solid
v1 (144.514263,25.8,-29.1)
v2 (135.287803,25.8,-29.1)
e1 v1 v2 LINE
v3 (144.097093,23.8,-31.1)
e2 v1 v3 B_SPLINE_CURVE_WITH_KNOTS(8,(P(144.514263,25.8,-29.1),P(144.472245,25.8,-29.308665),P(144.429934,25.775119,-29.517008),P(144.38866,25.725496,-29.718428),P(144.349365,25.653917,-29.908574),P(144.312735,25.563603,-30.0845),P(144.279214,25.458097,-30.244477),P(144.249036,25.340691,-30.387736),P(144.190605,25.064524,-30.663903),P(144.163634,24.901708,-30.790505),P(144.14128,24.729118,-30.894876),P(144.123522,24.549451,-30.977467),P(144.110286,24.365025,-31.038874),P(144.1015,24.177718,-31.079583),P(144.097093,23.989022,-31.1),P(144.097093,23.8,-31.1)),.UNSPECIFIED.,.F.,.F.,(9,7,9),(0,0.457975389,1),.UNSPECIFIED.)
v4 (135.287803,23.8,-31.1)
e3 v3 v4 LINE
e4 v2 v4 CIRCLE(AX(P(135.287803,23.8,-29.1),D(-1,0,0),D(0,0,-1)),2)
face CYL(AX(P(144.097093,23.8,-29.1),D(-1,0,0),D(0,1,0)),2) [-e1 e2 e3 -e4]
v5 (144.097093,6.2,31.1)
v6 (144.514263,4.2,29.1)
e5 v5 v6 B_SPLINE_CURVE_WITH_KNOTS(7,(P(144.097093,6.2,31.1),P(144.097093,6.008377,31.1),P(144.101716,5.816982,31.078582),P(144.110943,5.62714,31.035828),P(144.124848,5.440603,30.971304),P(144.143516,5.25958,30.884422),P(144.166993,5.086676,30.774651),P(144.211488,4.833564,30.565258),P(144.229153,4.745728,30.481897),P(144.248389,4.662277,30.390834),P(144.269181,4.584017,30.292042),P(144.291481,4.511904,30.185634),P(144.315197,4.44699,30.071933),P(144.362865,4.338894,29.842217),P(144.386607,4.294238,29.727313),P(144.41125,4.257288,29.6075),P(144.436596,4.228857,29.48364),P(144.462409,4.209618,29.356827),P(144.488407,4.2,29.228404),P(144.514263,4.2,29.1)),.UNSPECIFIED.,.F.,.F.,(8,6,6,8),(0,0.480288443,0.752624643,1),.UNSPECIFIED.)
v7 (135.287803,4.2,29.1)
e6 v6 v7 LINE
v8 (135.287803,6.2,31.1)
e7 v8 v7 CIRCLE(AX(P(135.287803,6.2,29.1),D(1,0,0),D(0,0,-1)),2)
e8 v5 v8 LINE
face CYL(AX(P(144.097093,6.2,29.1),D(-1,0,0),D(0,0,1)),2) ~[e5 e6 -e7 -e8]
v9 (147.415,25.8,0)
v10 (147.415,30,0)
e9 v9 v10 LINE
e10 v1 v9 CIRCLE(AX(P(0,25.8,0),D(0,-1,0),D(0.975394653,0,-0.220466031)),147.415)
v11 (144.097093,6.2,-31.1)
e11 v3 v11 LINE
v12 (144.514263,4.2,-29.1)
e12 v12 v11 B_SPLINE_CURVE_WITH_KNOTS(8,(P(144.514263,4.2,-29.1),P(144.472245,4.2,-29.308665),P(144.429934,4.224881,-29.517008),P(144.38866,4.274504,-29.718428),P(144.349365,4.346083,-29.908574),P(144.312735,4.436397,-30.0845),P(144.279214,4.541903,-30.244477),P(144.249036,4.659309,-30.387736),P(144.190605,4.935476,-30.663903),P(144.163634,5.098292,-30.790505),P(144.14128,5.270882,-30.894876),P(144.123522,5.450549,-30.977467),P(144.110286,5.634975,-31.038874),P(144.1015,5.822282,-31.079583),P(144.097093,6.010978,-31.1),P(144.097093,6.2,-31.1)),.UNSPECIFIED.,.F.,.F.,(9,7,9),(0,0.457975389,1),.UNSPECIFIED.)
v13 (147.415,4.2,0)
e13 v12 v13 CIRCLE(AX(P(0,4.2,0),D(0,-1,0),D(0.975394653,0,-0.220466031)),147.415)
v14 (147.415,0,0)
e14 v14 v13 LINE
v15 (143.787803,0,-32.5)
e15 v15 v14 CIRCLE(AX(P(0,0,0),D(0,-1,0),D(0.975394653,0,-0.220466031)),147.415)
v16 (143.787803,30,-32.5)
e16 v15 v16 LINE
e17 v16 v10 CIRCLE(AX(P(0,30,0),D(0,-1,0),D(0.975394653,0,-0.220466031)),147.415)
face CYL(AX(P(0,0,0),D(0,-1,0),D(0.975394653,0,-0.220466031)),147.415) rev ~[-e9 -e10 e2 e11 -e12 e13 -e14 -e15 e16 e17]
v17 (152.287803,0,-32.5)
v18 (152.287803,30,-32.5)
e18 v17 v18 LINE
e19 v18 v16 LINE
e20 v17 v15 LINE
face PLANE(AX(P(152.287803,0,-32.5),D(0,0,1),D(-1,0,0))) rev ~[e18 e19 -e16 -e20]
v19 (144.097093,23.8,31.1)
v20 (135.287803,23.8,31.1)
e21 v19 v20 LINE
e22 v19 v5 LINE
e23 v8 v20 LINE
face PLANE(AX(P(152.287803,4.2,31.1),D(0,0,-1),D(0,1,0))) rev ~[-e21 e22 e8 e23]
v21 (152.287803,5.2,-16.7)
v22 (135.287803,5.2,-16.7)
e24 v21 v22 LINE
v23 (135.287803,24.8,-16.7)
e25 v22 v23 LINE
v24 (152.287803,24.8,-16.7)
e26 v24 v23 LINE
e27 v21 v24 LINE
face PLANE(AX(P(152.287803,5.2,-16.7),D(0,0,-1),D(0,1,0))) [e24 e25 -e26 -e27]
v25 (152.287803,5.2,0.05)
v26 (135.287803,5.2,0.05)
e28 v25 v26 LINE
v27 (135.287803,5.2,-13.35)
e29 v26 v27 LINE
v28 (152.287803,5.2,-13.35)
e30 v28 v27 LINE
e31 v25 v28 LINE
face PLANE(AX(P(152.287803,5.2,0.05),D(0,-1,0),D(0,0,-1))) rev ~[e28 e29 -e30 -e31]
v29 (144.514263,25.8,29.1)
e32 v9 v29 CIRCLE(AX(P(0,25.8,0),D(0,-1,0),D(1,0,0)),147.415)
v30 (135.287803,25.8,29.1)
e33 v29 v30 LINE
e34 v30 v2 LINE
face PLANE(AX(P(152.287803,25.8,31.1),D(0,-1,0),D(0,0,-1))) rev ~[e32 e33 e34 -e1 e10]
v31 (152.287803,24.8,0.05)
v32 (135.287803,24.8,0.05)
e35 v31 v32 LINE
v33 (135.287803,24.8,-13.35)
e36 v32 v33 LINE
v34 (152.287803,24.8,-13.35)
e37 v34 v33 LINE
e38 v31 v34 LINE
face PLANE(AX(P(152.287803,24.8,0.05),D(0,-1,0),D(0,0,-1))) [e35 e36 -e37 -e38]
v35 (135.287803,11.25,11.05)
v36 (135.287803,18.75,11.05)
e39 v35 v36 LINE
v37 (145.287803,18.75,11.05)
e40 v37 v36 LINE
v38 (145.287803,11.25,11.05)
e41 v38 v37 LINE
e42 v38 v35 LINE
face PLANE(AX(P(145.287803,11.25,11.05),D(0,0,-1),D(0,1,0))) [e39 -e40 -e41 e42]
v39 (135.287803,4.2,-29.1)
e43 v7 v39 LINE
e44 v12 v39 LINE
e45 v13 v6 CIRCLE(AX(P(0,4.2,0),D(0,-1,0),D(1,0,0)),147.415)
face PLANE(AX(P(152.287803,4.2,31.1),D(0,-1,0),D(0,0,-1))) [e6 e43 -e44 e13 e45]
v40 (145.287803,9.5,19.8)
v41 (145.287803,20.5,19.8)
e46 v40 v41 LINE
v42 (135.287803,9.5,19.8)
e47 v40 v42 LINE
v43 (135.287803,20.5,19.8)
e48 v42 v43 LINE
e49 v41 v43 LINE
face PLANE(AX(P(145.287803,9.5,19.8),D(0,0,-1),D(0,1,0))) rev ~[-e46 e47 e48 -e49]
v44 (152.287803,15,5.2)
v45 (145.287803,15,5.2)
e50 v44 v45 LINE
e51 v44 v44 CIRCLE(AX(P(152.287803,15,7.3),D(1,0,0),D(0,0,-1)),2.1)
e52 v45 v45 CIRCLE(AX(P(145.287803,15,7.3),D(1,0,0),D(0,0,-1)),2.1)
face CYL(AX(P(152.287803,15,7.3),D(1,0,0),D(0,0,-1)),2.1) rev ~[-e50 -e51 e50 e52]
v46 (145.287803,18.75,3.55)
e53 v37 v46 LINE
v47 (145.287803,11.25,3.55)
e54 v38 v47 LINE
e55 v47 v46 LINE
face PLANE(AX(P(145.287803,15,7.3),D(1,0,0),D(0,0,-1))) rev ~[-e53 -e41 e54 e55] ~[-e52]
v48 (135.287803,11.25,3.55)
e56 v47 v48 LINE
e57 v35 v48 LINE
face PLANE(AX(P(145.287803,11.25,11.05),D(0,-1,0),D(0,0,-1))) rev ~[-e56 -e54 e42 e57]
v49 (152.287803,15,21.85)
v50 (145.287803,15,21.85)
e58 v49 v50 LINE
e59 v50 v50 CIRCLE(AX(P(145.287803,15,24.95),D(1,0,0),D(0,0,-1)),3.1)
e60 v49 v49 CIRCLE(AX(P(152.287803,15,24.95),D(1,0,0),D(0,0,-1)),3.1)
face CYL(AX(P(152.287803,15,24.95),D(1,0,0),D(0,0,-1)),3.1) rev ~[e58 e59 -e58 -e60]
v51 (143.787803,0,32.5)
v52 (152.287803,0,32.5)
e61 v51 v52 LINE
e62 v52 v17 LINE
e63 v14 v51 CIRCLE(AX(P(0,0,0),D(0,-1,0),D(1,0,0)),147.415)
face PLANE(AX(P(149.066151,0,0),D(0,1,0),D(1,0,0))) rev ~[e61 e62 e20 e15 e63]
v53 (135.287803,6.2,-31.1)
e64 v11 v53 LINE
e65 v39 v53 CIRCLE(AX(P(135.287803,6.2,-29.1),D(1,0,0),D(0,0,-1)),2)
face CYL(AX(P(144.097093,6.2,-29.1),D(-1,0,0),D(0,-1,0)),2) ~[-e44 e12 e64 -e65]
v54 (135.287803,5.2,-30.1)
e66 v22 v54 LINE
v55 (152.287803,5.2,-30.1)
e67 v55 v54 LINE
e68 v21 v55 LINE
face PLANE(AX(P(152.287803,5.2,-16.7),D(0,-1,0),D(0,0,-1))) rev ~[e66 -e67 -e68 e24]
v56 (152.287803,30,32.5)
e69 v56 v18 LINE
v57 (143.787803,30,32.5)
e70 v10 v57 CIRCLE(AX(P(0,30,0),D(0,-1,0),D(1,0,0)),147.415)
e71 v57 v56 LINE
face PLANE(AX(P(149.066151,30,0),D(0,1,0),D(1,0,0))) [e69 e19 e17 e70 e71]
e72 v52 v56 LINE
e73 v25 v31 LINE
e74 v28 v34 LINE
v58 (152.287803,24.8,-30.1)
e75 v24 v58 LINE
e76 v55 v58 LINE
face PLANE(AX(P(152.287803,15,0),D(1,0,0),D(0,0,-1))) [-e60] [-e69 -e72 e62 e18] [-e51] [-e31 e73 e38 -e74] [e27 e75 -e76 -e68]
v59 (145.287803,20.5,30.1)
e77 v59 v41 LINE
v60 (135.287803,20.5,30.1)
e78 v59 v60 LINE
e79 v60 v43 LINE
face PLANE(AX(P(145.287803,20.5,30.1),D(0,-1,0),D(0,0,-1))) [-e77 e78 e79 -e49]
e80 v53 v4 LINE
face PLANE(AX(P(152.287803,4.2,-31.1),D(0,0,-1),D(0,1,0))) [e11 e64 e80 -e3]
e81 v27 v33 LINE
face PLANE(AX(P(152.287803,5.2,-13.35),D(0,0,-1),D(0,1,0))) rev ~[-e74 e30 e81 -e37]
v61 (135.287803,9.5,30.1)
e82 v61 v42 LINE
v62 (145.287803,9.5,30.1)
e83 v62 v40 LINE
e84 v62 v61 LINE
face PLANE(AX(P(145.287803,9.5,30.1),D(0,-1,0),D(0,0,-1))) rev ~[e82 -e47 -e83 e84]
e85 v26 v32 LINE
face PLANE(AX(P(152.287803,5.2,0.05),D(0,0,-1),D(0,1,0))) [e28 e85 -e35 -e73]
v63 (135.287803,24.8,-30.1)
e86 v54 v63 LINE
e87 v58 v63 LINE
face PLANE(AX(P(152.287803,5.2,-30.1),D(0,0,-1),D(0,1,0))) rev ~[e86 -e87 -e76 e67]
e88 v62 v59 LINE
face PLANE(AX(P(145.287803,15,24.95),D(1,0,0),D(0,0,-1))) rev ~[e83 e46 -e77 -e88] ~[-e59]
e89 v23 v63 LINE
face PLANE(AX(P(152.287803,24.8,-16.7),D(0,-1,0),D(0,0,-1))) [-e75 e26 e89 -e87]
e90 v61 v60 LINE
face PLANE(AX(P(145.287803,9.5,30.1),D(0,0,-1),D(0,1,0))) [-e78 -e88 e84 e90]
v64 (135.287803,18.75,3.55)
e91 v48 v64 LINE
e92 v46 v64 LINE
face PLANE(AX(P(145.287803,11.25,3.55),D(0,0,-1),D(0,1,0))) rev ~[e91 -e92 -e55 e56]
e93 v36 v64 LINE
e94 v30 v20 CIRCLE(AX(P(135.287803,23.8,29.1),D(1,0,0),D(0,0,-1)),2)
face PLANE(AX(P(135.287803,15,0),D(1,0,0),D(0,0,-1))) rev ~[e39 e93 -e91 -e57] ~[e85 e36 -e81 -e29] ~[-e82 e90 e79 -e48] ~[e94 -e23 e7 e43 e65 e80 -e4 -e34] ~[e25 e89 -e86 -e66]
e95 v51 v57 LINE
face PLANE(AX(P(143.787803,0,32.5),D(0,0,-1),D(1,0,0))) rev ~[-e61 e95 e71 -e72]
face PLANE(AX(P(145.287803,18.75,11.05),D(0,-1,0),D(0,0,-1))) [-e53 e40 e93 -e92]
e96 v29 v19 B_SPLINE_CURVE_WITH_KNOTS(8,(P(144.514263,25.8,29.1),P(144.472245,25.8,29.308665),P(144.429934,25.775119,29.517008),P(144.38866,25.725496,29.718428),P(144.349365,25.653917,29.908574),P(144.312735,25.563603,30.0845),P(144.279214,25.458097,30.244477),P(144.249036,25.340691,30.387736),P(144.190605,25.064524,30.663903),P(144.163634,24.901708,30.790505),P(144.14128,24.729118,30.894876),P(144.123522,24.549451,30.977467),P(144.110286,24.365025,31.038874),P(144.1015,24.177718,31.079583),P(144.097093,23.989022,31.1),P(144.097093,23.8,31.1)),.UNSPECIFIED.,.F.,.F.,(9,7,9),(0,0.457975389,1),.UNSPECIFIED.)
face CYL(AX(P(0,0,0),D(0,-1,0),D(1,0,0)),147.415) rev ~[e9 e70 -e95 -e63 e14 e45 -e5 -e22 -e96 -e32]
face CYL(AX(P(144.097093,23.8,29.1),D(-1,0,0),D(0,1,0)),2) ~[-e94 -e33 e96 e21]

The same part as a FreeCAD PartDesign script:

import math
import FreeCAD as App
import Part
import Sketcher
from FreeCAD import Vector


def edges_at(feature, points):
    """Names of the edges that pass closest to the given points."""
    edges = feature.Shape.Edges
    near = lambda p: min(range(len(edges)), key=lambda i: edges[i].distToShape(Part.Vertex(*p))[0])
    return sorted({f"Edge{near(p) + 1}" for p in points})


def add_polygon(sketch, points):
    """Adds a closed chain of lines whose ends are joined by coincident constraints."""
    first, n = sketch.GeometryCount, len(points)
    for a, b in zip(points, points[1:] + points[:1]):
        sketch.addGeometry(Part.LineSegment(App.Vector(*a, 0), App.Vector(*b, 0)), False)
    for i in range(n):
        sketch.addConstraint(Sketcher.Constraint("Coincident", first + i, 2, first + (i + 1) % n, 1))

doc = App.newDocument("Part")
body = doc.addObject("PartDesign::Body", "Body")

sketch1 = body.newObject("Sketcher::SketchObject", "Sketch")
sketch1.AttachmentSupport = (doc.getObject("XZ_Plane"), [""])
sketch1.MapMode = "FlatFace"
sketch1.addGeometry([
    Part.LineSegment(Vector(152, -32, 0), Vector(144, -32, 0)),
    Part.ArcOfCircle(Part.Circle(Vector(0, 0, 0), Vector(0, 0, 1), 147), math.radians(-12.74), math.radians(0)),
    Part.ArcOfCircle(Part.Circle(Vector(0, 0, 0), Vector(0, 0, 1), 147), math.radians(0), math.radians(12.74)),
    Part.LineSegment(Vector(144, 32, 0), Vector(152, 32, 0)),
    Part.LineSegment(Vector(152, 32, 0), Vector(152, -32, 0)),
], False)
sketch1.addConstraint([
    Sketcher.Constraint("Coincident", 0, 2, 1, 1),
    Sketcher.Constraint("Tangent", 1, 2, 2, 1),
    Sketcher.Constraint("Coincident", 2, 2, 3, 1),
    Sketcher.Constraint("Coincident", 3, 2, 4, 1),
    Sketcher.Constraint("Coincident", 4, 2, 0, 1),
    Sketcher.Constraint("Horizontal", 0),
    Sketcher.Constraint("Horizontal", 3),
    Sketcher.Constraint("Vertical", 4),
    Sketcher.Constraint("Coincident", 1, 3, -1, 1),
    Sketcher.Constraint("Equal", 1, 2),
    Sketcher.Constraint("PointOnObject", 1, 2, -1),
    Sketcher.Constraint("Vertical", 0, 2, 2, 2),
    Sketcher.Constraint("DistanceY", 4, 2, 4, 1, 65.0),
    Sketcher.Constraint("DistanceX", 0, 2, 0, 1, 8.5),
    Sketcher.Constraint("Radius", 1, 147.415),
])
pad1 = body.newObject("PartDesign::Pad", "Pad")
pad1.Profile = sketch1
pad1.Length = 30
pad1.Reversed = True

sketch2 = body.newObject("Sketcher::SketchObject", "Sketch001")
sketch2.AttachmentSupport = (doc.getObject("YZ_Plane"), [""])
sketch2.MapMode = "FlatFace"
sketch2.AttachmentOffset = App.Placement(Vector(0, 0, 152.287803), App.Rotation())
add_polygon(sketch2, [(26, 31), (4, 31), (4, -31), (26, -31)])
sketch2.addConstraint([
    Sketcher.Constraint("Horizontal", 0),
    Sketcher.Constraint("Vertical", 1),
    Sketcher.Constraint("Horizontal", 2),
    Sketcher.Constraint("Vertical", 3),
    Sketcher.Constraint("DistanceX", 0, 2, 0, 1, 21.6),
    Sketcher.Constraint("DistanceY", 1, 2, 1, 1, 62.2),
    Sketcher.Constraint("DistanceX", -1, 1, 0, 2, 4.2),
    Sketcher.Constraint("DistanceY", -1, 1, 0, 2, 31.1),
])
pad2 = body.newObject("PartDesign::Pad", "Pad001")
pad2.Profile = sketch2
pad2.Length = 17
pad2.Reversed = True

sketch3 = body.newObject("Sketcher::SketchObject", "Sketch002")
sketch3.AttachmentSupport = (doc.getObject("YZ_Plane"), [""])
sketch3.MapMode = "FlatFace"
sketch3.AttachmentOffset = App.Placement(Vector(0, 0, 152.287803), App.Rotation())
sketch3.addGeometry(Part.Circle(Vector(15, 7.3, 0), Vector(0, 0, 1), 2.1), False)
sketch3.addGeometry(Part.Circle(Vector(15, 24.9, 0), Vector(0, 0, 1), 3.1), False)
add_polygon(sketch3, [(24.8, -16.7), (5.2, -16.7), (5.2, -30.1), (24.8, -30.1)])
add_polygon(sketch3, [(24.8, 0.1), (5.2, 0.1), (5.2, -13.3), (24.8, -13.3)])
sketch3.addConstraint([
    Sketcher.Constraint("Horizontal", 2),
    Sketcher.Constraint("Vertical", 3),
    Sketcher.Constraint("Horizontal", 4),
    Sketcher.Constraint("Vertical", 5),
    Sketcher.Constraint("Horizontal", 6),
    Sketcher.Constraint("Vertical", 7),
    Sketcher.Constraint("Horizontal", 8),
    Sketcher.Constraint("Vertical", 9),
    Sketcher.Constraint("Vertical", 0, 3, 1, 3),
    Sketcher.Constraint("Vertical", 3, 2, 6, 2),
    Sketcher.Constraint("Vertical", 5, 2, 8, 2),
    Sketcher.Constraint("Equal", 5, 7),
    Sketcher.Constraint("Diameter", 0, 4.2),
    Sketcher.Constraint("Diameter", 1, 6.2),
    Sketcher.Constraint("DistanceX", 2, 2, 2, 1, 19.6),
    Sketcher.Constraint("DistanceY", 3, 2, 3, 1, 13.4),
    Sketcher.Constraint("DistanceX", -1, 1, 0, 3, 15.0),
    Sketcher.Constraint("DistanceY", 2, 2, 0, 3, 24.0),
    Sketcher.Constraint("DistanceY", -1, 1, 0, 3, 7.3),
    Sketcher.Constraint("DistanceX", -1, 1, 2, 2, 5.2),
    Sketcher.Constraint("DistanceY", 6, 2, 1, 3, 24.9),
    Sketcher.Constraint("DistanceY", -1, 1, 1, 3, 24.95),
])
pocket1 = body.newObject("PartDesign::Pocket", "Pocket")
pocket1.Profile = sketch3
pocket1.Length = 17

sketch4 = body.newObject("Sketcher::SketchObject", "Sketch003")
sketch4.AttachmentSupport = (doc.getObject("YZ_Plane"), [""])
sketch4.MapMode = "FlatFace"
sketch4.AttachmentOffset = App.Placement(Vector(0, 0, 145.287803), App.Rotation())
add_polygon(sketch4, [(18.8, 11.1), (11.2, 11.1), (11.2, 3.5), (18.8, 3.5)])
sketch4.addGeometry(Part.Circle(Vector(15, 7.3, 0), Vector(0, 0, 1), 2.1), False)
add_polygon(sketch4, [(20.5, 30.1), (9.5, 30.1), (9.5, 19.8), (20.5, 19.8)])
sketch4.addGeometry(Part.Circle(Vector(15, 24.9, 0), Vector(0, 0, 1), 3.1), False)
sketch4.addConstraint([
    Sketcher.Constraint("Horizontal", 0),
    Sketcher.Constraint("Vertical", 1),
    Sketcher.Constraint("Horizontal", 2),
    Sketcher.Constraint("Vertical", 3),
    Sketcher.Constraint("Horizontal", 5),
    Sketcher.Constraint("Vertical", 6),
    Sketcher.Constraint("Horizontal", 7),
    Sketcher.Constraint("Vertical", 8),
    Sketcher.Constraint("Vertical", 4, 3, 9, 3),
    Sketcher.Constraint("Equal", 2, 1),
    Sketcher.Constraint("Diameter", 4, 4.2),
    Sketcher.Constraint("Diameter", 9, 6.2),
    Sketcher.Constraint("DistanceX", 5, 2, 5, 1, 11.0),
    Sketcher.Constraint("DistanceX", 0, 2, 0, 1, 7.5),
    Sketcher.Constraint("DistanceY", 6, 2, 6, 1, 10.3),
    Sketcher.Constraint("DistanceX", -1, 1, 4, 3, 15.0),
    Sketcher.Constraint("DistanceY", -1, 1, 4, 3, 7.3),
    Sketcher.Constraint("DistanceX", -1, 1, 5, 2, 9.5),
    Sketcher.Constraint("DistanceY", -1, 1, 5, 2, 30.1),
    Sketcher.Constraint("DistanceY", 0, 2, 9, 3, 13.9),
    Sketcher.Constraint("DistanceY", -1, 1, 9, 3, 24.95),
    Sketcher.Constraint("DistanceX", -1, 1, 0, 2, 11.25),
])
pocket2 = body.newObject("PartDesign::Pocket", "Pocket001")
pocket2.Profile = sketch4
pocket2.Length = 10
doc.recompute()

fillet = body.newObject("PartDesign::Fillet", "Fillet")
fillet.Base = (pocket2, edges_at(pocket2, [
    (139.692, 25.8, 31.1),
    (139.692, 25.8, -31.1),
    (139.692, 4.2, -31.1),
    (139.692, 4.2, 31.1),
]))
fillet.Radius = 2

doc.recompute()
